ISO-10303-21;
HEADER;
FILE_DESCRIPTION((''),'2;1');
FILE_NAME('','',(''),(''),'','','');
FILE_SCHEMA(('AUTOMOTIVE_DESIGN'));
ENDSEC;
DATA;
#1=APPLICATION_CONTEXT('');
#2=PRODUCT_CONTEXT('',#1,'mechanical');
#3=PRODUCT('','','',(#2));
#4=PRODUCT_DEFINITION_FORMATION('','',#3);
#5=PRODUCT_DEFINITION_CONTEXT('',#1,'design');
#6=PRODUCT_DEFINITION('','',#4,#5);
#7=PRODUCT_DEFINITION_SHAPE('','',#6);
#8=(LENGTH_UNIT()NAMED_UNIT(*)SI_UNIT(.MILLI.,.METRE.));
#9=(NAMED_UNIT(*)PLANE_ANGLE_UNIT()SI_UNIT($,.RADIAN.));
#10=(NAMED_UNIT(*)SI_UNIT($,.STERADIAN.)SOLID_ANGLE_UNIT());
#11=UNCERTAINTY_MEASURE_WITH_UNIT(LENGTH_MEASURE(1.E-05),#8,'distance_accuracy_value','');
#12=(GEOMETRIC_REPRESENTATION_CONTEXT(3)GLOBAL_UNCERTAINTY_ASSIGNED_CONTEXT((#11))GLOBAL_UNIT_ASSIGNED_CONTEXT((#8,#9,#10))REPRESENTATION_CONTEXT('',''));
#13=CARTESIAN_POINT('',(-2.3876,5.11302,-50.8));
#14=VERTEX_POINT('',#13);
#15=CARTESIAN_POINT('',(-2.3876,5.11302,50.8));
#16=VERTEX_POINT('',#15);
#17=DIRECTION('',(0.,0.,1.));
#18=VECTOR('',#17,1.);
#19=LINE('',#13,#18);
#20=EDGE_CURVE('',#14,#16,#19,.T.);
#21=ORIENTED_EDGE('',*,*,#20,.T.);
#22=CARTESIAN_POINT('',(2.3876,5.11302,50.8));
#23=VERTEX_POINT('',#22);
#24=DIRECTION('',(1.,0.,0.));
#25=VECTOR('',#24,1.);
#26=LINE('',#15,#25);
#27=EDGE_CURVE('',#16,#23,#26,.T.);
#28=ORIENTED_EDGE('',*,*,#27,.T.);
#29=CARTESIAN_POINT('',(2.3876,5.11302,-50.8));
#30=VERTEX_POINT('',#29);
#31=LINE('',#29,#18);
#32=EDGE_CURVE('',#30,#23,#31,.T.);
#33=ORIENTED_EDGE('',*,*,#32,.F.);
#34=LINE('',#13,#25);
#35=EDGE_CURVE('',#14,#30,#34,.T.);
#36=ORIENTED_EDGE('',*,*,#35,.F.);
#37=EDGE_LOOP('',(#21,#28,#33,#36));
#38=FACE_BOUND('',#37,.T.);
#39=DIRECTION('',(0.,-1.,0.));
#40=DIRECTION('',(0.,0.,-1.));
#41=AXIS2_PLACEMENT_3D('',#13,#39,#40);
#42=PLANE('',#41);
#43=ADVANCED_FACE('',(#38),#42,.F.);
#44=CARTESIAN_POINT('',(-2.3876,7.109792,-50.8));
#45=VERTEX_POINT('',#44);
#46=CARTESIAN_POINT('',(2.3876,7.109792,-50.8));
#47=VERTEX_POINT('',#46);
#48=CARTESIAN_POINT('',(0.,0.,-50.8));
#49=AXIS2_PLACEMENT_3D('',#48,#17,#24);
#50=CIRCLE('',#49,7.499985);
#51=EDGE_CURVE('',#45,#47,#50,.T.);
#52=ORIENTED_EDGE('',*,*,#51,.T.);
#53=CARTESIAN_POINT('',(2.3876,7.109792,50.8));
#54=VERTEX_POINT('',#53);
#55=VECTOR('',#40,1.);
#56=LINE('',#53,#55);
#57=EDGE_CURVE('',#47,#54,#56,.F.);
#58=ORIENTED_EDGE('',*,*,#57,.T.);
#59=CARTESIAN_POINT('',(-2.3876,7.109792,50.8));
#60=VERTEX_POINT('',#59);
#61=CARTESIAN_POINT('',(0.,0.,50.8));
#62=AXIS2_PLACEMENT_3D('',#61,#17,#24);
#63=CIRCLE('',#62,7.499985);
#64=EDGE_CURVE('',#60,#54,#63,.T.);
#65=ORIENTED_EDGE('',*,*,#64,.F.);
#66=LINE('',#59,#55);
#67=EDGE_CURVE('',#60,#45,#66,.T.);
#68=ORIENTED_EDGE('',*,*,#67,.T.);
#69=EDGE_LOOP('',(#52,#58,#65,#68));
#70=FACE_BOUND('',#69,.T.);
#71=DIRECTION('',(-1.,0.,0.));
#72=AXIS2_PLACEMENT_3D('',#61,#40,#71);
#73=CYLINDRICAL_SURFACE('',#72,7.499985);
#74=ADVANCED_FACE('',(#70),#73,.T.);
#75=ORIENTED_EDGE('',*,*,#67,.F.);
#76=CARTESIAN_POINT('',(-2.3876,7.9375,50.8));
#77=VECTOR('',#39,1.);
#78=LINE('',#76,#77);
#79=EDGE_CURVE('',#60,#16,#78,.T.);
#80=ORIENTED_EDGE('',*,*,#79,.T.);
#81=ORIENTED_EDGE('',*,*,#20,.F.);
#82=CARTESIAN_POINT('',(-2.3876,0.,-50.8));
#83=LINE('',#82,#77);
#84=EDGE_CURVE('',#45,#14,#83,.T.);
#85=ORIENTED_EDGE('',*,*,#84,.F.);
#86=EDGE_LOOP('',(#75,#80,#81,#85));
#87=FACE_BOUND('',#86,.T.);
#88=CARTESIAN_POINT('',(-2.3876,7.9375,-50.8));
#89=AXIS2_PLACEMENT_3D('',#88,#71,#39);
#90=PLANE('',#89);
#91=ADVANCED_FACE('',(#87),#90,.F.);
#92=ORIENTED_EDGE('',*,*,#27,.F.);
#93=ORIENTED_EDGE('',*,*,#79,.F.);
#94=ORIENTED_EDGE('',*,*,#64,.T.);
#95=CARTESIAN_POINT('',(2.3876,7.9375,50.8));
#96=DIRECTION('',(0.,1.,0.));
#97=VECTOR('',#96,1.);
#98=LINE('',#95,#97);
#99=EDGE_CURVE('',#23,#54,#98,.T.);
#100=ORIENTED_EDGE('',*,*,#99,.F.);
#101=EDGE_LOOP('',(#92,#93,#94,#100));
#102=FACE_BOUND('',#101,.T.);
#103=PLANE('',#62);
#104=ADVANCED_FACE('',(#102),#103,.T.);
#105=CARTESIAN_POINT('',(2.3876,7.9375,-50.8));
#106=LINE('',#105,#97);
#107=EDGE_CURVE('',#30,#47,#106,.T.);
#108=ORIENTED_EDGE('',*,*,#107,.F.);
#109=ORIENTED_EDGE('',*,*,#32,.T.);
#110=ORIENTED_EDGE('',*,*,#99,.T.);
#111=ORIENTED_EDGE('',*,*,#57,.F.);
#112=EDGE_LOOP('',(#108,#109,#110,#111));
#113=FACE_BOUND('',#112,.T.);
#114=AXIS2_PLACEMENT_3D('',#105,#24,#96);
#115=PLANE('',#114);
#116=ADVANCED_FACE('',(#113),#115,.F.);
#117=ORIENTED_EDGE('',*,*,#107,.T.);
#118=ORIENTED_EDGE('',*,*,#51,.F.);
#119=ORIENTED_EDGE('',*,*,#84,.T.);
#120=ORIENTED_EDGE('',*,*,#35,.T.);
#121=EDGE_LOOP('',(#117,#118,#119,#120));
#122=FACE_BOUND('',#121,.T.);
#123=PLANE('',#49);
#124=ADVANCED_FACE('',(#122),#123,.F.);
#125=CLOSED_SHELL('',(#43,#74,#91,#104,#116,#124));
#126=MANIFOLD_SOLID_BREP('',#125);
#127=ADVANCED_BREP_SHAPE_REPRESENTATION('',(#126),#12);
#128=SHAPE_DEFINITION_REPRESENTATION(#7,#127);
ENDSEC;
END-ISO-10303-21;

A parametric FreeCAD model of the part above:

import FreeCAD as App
import Part
import Sketcher
from FreeCAD import Vector
Q = App.Units.Quantity

doc = App.newDocument("Part")
params = doc.addObject("Spreadsheet::Sheet", "Params")
for row, (alias, value) in enumerate([
    ("pad1_length", "4 in"),
    ("sketch2_width", "0.188 in"),
], start=1):
    params.set(f"A{row}", alias)
    params.set(f"B{row}", "=" + value)
    params.setAlias(f"B{row}", alias)

body = doc.addObject("PartDesign::Body", "Body")

# Sketch on XY plane
sketch1 = body.newObject("Sketcher::SketchObject", "Sketch")
sketch1.AttachmentSupport = (doc.getObject("XY_Plane"), [""])
sketch1.MapMode = "FlatFace"
sketch1.addGeometry(Part.Circle(Vector(0, 0, 0), Vector(0, 0, 1), 7), False)
sketch1.addConstraint(Sketcher.Constraint("Coincident", 0, 3, -1, 1))
sketch1.addConstraint(Sketcher.Constraint("Diameter", 0, Q("14.99997 mm")))
pad1 = body.newObject("PartDesign::Pad", "Pad")
pad1.Profile = sketch1
pad1.setExpression("Length", "Params.pad1_length")
pad1.Midplane = True

# Sketch on XY plane
sketch2 = body.newObject("Sketcher::SketchObject", "Sketch001")
sketch2.AttachmentSupport = (doc.getObject("XY_Plane"), [""])
sketch2.MapMode = "FlatFace"
sketch2.addGeometry(Part.LineSegment(Vector(-2.4, 7.9, 0), Vector(-2.4, 5.1, 0)), False)
sketch2.addGeometry(Part.LineSegment(Vector(-2.4, 5.1, 0), Vector(2.4, 5.1, 0)), False)
sketch2.addGeometry(Part.LineSegment(Vector(2.4, 5.1, 0), Vector(2.4, 7.9, 0)), False)
sketch2.addGeometry(Part.LineSegment(Vector(2.4, 7.9, 0), Vector(-2.4, 7.9, 0)), False)
sketch2.addConstraint(Sketcher.Constraint("Coincident", 0, 2, 1, 1))
sketch2.addConstraint(Sketcher.Constraint("Coincident", 1, 2, 2, 1))
sketch2.addConstraint(Sketcher.Constraint("Coincident", 2, 2, 3, 1))
sketch2.addConstraint(Sketcher.Constraint("Coincident", 3, 2, 0, 1))
sketch2.addConstraint(Sketcher.Constraint("Vertical", 0))
sketch2.addConstraint(Sketcher.Constraint("Horizontal", 1))
sketch2.addConstraint(Sketcher.Constraint("Vertical", 2))
sketch2.addConstraint(Sketcher.Constraint("Horizontal", 3))
sketch2.addConstraint(Sketcher.Constraint("DistanceX", 1, 1, 1, 2, Q("0.188 in")))
sketch2.addConstraint(Sketcher.Constraint("DistanceY", 0, 2, 0, 1, Q("0.1112 in")))
sketch2.addConstraint(Sketcher.Constraint("DistanceX", 0, 2, -1, 1, Q("0.094 in")))
sketch2.addConstraint(Sketcher.Constraint("DistanceY", -1, 1, 2, 2, Q("0.3125 in")))
sketch2.setExpression("Constraints[8]", "Params.sketch2_width")
pocket1 = body.newObject("PartDesign::Pocket", "Pocket")
pocket1.Profile = sketch2
pocket1.Type = "ThroughAll"
pocket1.Midplane = True

doc.recompute()
